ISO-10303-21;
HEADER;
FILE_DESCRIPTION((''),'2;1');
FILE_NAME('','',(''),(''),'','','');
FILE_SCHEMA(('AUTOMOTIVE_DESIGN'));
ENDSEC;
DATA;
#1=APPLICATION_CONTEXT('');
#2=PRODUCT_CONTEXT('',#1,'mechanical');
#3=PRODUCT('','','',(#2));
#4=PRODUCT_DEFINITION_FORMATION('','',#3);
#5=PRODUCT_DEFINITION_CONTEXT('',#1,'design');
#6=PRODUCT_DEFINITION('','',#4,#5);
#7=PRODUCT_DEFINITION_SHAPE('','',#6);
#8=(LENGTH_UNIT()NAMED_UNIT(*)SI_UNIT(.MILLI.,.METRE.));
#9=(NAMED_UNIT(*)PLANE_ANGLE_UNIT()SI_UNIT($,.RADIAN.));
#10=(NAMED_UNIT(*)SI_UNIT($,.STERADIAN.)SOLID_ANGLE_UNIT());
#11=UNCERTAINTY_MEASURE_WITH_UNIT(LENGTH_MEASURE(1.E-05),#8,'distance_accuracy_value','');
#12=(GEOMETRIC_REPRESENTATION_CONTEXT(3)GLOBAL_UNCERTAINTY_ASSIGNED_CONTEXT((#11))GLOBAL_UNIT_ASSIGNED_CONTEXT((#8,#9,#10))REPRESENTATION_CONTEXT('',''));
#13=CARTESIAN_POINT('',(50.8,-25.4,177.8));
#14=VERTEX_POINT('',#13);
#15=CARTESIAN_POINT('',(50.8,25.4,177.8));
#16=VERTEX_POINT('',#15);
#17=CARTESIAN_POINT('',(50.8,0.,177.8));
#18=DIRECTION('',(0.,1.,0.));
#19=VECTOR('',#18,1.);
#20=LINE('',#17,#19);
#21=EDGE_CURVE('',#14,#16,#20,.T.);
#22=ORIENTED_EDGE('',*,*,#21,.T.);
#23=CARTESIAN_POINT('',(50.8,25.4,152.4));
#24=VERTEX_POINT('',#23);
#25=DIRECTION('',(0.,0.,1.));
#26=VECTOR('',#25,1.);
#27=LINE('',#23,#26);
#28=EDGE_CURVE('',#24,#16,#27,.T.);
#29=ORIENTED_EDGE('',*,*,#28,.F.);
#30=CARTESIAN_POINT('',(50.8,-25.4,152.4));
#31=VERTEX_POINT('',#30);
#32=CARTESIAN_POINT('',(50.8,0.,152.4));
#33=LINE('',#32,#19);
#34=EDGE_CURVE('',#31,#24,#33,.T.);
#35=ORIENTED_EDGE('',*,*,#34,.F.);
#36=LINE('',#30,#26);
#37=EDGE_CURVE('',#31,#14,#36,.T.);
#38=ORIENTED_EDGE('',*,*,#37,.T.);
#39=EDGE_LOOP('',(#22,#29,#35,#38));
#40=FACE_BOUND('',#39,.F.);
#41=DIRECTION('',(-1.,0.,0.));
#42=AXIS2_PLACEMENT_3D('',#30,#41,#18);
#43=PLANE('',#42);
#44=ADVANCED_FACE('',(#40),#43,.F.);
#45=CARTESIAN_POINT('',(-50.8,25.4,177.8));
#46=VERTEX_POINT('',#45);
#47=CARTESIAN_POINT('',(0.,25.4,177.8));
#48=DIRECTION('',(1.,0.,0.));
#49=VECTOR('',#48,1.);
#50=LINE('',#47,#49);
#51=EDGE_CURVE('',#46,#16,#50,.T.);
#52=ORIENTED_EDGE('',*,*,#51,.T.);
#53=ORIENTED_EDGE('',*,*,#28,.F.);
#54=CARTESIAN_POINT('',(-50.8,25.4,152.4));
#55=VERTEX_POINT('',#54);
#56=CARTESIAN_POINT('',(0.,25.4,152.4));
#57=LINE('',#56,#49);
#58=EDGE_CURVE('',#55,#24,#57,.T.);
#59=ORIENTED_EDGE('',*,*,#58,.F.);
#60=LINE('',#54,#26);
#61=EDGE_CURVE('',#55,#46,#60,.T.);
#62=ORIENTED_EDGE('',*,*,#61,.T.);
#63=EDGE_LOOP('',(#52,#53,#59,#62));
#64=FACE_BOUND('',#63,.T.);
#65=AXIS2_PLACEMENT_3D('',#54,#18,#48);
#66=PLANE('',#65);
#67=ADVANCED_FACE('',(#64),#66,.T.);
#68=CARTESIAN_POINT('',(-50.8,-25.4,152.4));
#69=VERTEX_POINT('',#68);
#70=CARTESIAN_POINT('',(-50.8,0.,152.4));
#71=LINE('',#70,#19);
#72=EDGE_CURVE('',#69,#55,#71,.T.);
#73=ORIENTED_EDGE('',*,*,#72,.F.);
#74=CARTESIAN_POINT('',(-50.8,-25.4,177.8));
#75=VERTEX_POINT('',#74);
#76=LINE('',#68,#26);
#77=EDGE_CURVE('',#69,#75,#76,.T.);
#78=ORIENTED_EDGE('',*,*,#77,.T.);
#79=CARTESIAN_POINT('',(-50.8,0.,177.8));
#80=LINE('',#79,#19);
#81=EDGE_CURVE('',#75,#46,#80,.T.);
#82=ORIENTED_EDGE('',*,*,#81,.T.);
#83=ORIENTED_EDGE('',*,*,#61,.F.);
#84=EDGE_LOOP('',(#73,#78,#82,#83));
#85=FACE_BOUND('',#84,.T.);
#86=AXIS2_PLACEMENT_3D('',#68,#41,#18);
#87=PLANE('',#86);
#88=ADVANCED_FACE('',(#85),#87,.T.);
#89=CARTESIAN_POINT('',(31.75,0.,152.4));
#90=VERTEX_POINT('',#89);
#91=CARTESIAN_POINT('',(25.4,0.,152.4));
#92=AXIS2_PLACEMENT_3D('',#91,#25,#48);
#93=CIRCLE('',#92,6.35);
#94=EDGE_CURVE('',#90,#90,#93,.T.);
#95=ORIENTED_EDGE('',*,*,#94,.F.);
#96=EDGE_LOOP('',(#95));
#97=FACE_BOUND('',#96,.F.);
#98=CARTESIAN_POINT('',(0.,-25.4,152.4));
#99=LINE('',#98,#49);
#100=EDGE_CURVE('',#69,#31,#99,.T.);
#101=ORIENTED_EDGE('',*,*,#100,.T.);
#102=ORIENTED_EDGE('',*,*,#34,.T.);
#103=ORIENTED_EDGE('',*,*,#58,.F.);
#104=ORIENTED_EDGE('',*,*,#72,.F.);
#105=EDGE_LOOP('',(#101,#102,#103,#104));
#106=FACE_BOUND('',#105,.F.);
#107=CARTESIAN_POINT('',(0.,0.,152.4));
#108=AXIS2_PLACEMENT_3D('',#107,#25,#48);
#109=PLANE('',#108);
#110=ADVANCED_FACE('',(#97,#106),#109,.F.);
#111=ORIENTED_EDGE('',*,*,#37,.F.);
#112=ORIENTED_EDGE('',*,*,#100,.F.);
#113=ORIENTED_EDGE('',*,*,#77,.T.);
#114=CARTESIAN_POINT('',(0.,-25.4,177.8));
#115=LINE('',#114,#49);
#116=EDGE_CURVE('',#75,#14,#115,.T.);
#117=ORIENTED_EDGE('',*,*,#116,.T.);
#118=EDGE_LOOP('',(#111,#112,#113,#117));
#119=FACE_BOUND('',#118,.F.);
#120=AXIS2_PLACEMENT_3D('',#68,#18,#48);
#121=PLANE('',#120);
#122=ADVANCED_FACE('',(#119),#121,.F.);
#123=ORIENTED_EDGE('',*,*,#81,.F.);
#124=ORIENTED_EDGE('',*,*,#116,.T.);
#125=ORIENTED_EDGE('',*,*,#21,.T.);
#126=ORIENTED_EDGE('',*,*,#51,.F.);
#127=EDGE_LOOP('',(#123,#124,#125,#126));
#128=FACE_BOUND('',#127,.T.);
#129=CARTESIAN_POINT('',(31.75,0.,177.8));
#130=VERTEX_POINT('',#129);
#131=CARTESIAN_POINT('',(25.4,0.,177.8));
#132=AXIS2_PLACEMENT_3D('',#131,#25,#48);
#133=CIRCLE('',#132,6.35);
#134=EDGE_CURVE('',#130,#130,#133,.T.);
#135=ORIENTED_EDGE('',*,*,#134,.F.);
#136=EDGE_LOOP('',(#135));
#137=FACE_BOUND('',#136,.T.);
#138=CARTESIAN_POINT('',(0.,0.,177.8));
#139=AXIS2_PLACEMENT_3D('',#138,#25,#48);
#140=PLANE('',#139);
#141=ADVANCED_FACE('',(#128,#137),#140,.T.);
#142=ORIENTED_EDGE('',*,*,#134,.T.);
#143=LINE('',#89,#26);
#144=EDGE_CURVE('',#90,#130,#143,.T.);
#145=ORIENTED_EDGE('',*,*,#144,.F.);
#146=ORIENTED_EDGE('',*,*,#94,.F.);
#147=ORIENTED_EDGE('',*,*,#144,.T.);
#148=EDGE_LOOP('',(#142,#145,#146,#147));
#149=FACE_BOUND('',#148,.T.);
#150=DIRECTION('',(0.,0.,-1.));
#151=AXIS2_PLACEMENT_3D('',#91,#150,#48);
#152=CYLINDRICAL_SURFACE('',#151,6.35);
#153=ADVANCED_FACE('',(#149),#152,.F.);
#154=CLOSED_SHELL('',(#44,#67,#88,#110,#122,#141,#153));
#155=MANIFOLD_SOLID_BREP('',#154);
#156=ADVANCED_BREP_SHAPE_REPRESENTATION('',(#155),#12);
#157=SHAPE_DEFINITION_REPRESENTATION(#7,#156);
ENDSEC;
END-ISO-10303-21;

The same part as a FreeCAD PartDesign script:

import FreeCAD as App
import Part
import Sketcher
from FreeCAD import Vector
Q = App.Units.Quantity


def add_polygon(sketch, points):
    """Adds a closed chain of lines whose ends are joined by coincident constraints."""
    first, n = sketch.GeometryCount, len(points)
    for a, b in zip(points, points[1:] + points[:1]):
        sketch.addGeometry(Part.LineSegment(App.Vector(*a, 0), App.Vector(*b, 0)), False)
    for i in range(n):
        sketch.addConstraint(Sketcher.Constraint("Coincident", first + i, 2, first + (i + 1) % n, 1))

doc = App.newDocument("Part")
body = doc.addObject("PartDesign::Body", "Body")

# Sketch on XY plane
sketch1 = body.newObject("Sketcher::SketchObject", "Sketch")
sketch1.AttachmentSupport = (doc.getObject("XY_Plane"), [""])
sketch1.MapMode = "FlatFace"
sketch1.AttachmentOffset = App.Placement(Vector(0, 0, 6 * 25.4), App.Rotation())
add_polygon(sketch1, [(-51, 25), (-51, -25), (51, -25), (51, 25)])  # lines 0-3
sketch1.addGeometry(Part.Circle(Vector(25, 0, 0), Vector(0, 0, 1), 6), False)  # 4
sketch1.addConstraint([
    Sketcher.Constraint("Vertical", 0),
    Sketcher.Constraint("Horizontal", 1),
    Sketcher.Constraint("Vertical", 2),
    Sketcher.Constraint("Horizontal", 3),
    Sketcher.Constraint("Symmetric", 0, 2, 2, 2, -1, 1),
    Sketcher.Constraint("PointOnObject", 4, 3, -1),
    Sketcher.Constraint("Diameter", 4, Q("0.5 in")),
    Sketcher.Constraint("DistanceX", 1, 1, 1, 2, Q("4 in")),
    Sketcher.Constraint("DistanceY", 0, 2, 0, 1, Q("2 in")),
    Sketcher.Constraint("DistanceX", -1, 1, 4, 3, Q("1 in")),
])
pad1 = body.newObject("PartDesign::Pad", "Pad")
pad1.Profile = sketch1
pad1.Length = Q("1 in")

doc.recompute()
